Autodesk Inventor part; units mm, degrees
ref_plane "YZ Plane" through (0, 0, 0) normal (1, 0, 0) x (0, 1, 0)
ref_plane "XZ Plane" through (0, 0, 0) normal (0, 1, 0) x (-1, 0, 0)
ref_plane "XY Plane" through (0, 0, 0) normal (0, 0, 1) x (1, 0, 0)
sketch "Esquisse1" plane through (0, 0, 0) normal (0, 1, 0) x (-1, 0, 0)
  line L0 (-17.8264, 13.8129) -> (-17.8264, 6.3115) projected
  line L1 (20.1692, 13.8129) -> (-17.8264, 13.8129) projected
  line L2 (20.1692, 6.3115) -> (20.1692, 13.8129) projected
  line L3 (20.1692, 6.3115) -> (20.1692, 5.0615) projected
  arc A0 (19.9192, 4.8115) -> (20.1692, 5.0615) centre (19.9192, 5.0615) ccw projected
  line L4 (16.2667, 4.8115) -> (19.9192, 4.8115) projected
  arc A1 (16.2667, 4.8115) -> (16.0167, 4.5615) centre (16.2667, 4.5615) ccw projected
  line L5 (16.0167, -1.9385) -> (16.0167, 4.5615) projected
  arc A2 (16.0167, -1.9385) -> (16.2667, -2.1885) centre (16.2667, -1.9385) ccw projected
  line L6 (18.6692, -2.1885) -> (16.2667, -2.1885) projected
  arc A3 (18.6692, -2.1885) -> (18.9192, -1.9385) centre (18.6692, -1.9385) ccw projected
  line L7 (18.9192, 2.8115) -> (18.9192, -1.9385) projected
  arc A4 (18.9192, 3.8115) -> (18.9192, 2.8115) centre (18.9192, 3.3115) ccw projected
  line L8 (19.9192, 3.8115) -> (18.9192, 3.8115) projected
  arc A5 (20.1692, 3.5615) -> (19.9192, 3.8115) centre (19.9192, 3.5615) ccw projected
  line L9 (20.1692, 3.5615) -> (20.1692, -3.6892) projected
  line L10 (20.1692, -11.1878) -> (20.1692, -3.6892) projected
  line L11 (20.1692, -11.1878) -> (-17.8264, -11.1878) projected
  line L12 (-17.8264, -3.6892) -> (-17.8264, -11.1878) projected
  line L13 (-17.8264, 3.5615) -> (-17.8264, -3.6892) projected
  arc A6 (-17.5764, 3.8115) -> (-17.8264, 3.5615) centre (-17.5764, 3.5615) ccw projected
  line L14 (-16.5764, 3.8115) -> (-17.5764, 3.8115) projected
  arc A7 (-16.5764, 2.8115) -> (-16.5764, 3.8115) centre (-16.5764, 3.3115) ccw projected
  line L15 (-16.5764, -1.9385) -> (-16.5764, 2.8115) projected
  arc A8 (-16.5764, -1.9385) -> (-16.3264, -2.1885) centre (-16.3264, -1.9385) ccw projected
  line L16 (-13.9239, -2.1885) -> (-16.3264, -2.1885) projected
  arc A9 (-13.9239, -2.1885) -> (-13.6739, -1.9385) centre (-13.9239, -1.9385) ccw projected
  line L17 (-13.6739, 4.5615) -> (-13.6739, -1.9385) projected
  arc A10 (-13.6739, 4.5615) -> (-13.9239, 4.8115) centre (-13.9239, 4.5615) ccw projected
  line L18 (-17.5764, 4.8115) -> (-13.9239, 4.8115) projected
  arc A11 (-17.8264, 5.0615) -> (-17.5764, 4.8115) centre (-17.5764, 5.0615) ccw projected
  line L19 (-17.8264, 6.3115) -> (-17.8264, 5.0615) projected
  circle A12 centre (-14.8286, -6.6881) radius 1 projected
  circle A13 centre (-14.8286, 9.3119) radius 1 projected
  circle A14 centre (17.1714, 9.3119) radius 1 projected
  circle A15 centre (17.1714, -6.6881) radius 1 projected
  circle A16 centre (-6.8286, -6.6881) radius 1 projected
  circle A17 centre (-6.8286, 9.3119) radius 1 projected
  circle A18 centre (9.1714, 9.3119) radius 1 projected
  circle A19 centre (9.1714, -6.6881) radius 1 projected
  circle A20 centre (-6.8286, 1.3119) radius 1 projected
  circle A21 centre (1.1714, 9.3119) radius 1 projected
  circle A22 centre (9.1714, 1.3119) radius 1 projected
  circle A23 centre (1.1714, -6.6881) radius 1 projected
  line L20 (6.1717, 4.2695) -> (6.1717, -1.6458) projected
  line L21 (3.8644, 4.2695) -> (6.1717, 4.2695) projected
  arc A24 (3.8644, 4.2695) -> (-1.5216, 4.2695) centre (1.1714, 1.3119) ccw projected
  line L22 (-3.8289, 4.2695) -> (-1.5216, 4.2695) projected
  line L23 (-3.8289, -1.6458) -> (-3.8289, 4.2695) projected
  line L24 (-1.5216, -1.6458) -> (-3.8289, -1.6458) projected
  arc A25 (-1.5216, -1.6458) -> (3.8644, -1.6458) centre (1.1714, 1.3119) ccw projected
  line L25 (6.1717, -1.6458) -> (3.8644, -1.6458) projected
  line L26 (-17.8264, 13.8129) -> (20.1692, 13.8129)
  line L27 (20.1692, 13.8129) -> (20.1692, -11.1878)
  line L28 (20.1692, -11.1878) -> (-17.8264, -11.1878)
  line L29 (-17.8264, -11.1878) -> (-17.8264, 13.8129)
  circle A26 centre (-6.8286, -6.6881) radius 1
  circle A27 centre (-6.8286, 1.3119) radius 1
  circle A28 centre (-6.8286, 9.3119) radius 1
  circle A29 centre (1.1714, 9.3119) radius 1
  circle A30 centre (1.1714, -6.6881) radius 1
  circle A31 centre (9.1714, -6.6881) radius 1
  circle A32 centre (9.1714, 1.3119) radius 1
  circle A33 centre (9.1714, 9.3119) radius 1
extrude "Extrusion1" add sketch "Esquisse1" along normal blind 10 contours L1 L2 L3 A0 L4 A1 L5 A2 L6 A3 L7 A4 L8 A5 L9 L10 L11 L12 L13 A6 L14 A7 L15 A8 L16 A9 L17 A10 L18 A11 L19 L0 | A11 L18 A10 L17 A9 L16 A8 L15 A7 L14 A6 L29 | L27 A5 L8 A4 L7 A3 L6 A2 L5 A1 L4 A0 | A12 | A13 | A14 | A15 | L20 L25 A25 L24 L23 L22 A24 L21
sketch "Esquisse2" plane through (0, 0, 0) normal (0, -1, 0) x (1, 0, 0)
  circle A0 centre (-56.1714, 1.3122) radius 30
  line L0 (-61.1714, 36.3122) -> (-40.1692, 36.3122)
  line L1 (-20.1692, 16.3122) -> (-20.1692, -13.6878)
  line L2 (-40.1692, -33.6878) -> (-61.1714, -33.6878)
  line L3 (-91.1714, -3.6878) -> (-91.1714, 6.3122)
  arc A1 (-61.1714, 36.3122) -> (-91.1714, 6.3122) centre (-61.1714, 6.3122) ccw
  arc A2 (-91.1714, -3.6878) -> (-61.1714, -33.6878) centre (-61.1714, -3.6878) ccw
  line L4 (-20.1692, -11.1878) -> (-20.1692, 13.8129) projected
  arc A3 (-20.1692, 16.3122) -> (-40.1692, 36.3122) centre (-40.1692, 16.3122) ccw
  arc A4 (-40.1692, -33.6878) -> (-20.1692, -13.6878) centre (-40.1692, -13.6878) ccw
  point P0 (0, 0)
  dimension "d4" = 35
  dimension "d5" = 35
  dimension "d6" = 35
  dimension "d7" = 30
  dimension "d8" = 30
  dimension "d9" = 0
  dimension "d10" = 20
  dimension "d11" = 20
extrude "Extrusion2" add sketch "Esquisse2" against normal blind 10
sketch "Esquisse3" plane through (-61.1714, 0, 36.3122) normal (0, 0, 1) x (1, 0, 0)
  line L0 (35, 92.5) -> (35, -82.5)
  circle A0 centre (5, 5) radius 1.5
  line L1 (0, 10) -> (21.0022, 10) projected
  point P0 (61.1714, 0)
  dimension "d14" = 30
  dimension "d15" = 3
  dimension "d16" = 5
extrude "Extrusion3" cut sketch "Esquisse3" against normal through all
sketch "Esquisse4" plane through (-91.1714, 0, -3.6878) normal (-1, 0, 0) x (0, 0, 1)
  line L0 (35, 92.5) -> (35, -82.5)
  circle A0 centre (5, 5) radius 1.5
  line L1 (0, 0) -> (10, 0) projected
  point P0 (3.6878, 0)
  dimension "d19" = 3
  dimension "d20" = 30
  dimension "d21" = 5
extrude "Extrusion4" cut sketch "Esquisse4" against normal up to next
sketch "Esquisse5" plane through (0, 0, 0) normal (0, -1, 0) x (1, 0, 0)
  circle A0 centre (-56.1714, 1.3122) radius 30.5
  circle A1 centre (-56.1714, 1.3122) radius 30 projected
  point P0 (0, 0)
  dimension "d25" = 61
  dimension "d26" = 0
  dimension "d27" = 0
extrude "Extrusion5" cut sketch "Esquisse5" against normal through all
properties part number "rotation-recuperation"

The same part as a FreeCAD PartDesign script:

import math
import FreeCAD as App
import Part
import Sketcher
Q = App.Units.Quantity

doc = App.newDocument("Part")
body = doc.addObject("PartDesign::Body", "Body")

sketch1 = body.newObject("Sketcher::SketchObject", "Sketch")
sketch1.AttachmentSupport = (doc.getObject("XZ_Plane"), [""])
sketch1.MapMode = "FlatFace"
sketch1.addGeometry([
    Part.LineSegment(App.Vector(-20.1692, 13.8129, 0), App.Vector(17.8264, 13.8129, 0)),
    Part.LineSegment(App.Vector(17.8264, 13.8129, 0), App.Vector(17.8264, -11.1878, 0)),
    Part.LineSegment(App.Vector(17.8264, -11.1878, 0), App.Vector(-20.1692, -11.1878, 0)),
    Part.LineSegment(App.Vector(-20.1692, -11.1878, 0), App.Vector(-20.1692, 13.8129, 0)),
    Part.Circle(App.Vector(6.8286, -6.6881, 0), App.Vector(0, 0, 1), 1),
    Part.Circle(App.Vector(6.8286, 1.3119, 0), App.Vector(0, 0, 1), 1),
    Part.Circle(App.Vector(-1.1714, -6.6881, 0), App.Vector(0, 0, 1), 1),
    Part.Circle(App.Vector(-9.1714, -6.6881, 0), App.Vector(0, 0, 1), 1),
    Part.Circle(App.Vector(-9.1714, 1.3119, 0), App.Vector(0, 0, 1), 1),
    Part.Circle(App.Vector(6.8286, 9.3119, 0), App.Vector(0, 0, 1), 1),
    Part.Circle(App.Vector(-1.1714, 9.3119, 0), App.Vector(0, 0, 1), 1),
    Part.Circle(App.Vector(-9.1714, 9.3119, 0), App.Vector(0, 0, 1), 1),
], False)
sketch1.addConstraint([
    Sketcher.Constraint("Coincident", 0, 2, 1, 1),
    Sketcher.Constraint("Coincident", 1, 2, 2, 1),
    Sketcher.Constraint("Coincident", 2, 2, 3, 1),
    Sketcher.Constraint("Coincident", 3, 2, 0, 1),
    Sketcher.Constraint("Horizontal", 0),
    Sketcher.Constraint("Vertical", 1),
    Sketcher.Constraint("Horizontal", 2),
    Sketcher.Constraint("Vertical", 3),
    Sketcher.Constraint("Equal", 4, 5),
    Sketcher.Constraint("Equal", 5, 6),
    Sketcher.Constraint("Equal", 6, 7),
    Sketcher.Constraint("Equal", 7, 8),
    Sketcher.Constraint("Equal", 8, 9),
    Sketcher.Constraint("Equal", 9, 10),
    Sketcher.Constraint("Equal", 10, 11),
    Sketcher.Constraint("Horizontal", 4, 3, 6, 3),
    Sketcher.Constraint("Horizontal", 6, 3, 7, 3),
    Sketcher.Constraint("Horizontal", 5, 3, 8, 3),
    Sketcher.Constraint("Horizontal", 9, 3, 10, 3),
    Sketcher.Constraint("Horizontal", 10, 3, 11, 3),
    Sketcher.Constraint("Vertical", 4, 3, 5, 3),
    Sketcher.Constraint("Vertical", 7, 3, 8, 3),
    Sketcher.Constraint("Vertical", 5, 3, 9, 3),
    Sketcher.Constraint("Vertical", 6, 3, 10, 3),
    Sketcher.Constraint("Vertical", 8, 3, 11, 3),
    Sketcher.Constraint("Diameter", 4, Q("2 mm")),
    Sketcher.Constraint("DistanceY", 4, 3, 5, 3, Q("8 mm")),
    Sketcher.Constraint("DistanceX", 6, 3, 4, 3, Q("8 mm")),
    Sketcher.Constraint("DistanceX", 7, 3, 6, 3, Q("8 mm")),
    Sketcher.Constraint("DistanceY", 5, 3, 9, 3, Q("8 mm")),
    Sketcher.Constraint("DistanceX", 0, 1, 0, 2, Q("37.9956 mm")),
    Sketcher.Constraint("DistanceY", 1, 2, 1, 1, Q("25.0007 mm")),
    Sketcher.Constraint("DistanceY", 4, 3, -1, 1, Q("6.688 mm")),
    Sketcher.Constraint("DistanceY", -1, 1, 0, 2, Q("13.813 mm")),
    Sketcher.Constraint("DistanceX", -1, 1, 4, 3, Q("6.8286 mm")),
    Sketcher.Constraint("DistanceX", -1, 1, 0, 2, Q("17.8264 mm")),
])
pad1 = body.newObject("PartDesign::Pad", "Pad")
pad1.Profile = sketch1
pad1.Length = 10
pad1.Reversed = True

sketch2 = body.newObject("Sketcher::SketchObject", "Sketch001")
sketch2.AttachmentSupport = (doc.getObject("XZ_Plane"), [""])
sketch2.MapMode = "FlatFace"
sketch2.addGeometry([
    Part.LineSegment(App.Vector(-40.1692, 36.3122, 0), App.Vector(-61.1714, 36.3122, 0)),
    Part.ArcOfCircle(Part.Circle(App.Vector(-61.1714, 6.3122, 0), App.Vector(0, 0, 1), 30), math.radians(90), math.radians(180)),
    Part.LineSegment(App.Vector(-91.1714, 6.3122, 0), App.Vector(-91.1714, -3.6878, 0)),
    Part.ArcOfCircle(Part.Circle(App.Vector(-61.1714, -3.6878, 0), App.Vector(0, 0, 1), 30), math.radians(180), math.radians(270)),
    Part.LineSegment(App.Vector(-61.1714, -33.6878, 0), App.Vector(-40.1692, -33.6878, 0)),
    Part.ArcOfCircle(Part.Circle(App.Vector(-40.1692, -13.6878, 0), App.Vector(0, 0, 1), 20), math.radians(-90), math.radians(0)),
    Part.LineSegment(App.Vector(-20.1692, -13.6878, 0), App.Vector(-20.1692, 16.3122, 0)),
    Part.ArcOfCircle(Part.Circle(App.Vector(-40.1692, 16.3122, 0), App.Vector(0, 0, 1), 20), math.radians(0), math.radians(90)),
    Part.Circle(App.Vector(-56.1714, 1.3122, 0), App.Vector(0, 0, 1), 30),
], False)
sketch2.addConstraint([
    Sketcher.Constraint("Tangent", 0, 2, 1, 1),
    Sketcher.Constraint("Tangent", 1, 2, 2, 1),
    Sketcher.Constraint("Tangent", 2, 2, 3, 1),
    Sketcher.Constraint("Tangent", 3, 2, 4, 1),
    Sketcher.Constraint("Tangent", 4, 2, 5, 1),
    Sketcher.Constraint("Tangent", 5, 2, 6, 1),
    Sketcher.Constraint("Tangent", 6, 2, 7, 1),
    Sketcher.Constraint("Tangent", 7, 2, 0, 1),
    Sketcher.Constraint("Horizontal", 0),
    Sketcher.Constraint("Vertical", 2),
    Sketcher.Constraint("Horizontal", 4),
    Sketcher.Constraint("Vertical", 6),
    Sketcher.Constraint("Equal", 1, 3),
    Sketcher.Constraint("Equal", 5, 7),
    Sketcher.Constraint("Equal", 3, 8),
    Sketcher.Constraint("Diameter", 8, Q("60 mm")),
    Sketcher.Constraint("Radius", 5, Q("20 mm")),
    Sketcher.Constraint("DistanceY", 6, 1, 6, 2, Q("30 mm")),
    Sketcher.Constraint("DistanceY", 8, 3, 0, 2, Q("35 mm")),
    Sketcher.Constraint("DistanceX", 1, 2, 8, 3, Q("35 mm")),
    Sketcher.Constraint("DistanceX", 0, 2, 0, 1, Q("21.0022 mm")),
    Sketcher.Constraint("DistanceX", 1, 3, -1, 1, Q("61.1714 mm")),
    Sketcher.Constraint("DistanceY", -1, 1, 1, 3, Q("6.3122 mm")),
])
pad2 = body.newObject("PartDesign::Pad", "Pad001")
pad2.Profile = sketch2
pad2.Length = 10
pad2.Reversed = True

sketch3 = body.newObject("Sketcher::SketchObject", "Sketch002")
sketch3.AttachmentSupport = (doc.getObject("XY_Plane"), [""])
sketch3.MapMode = "FlatFace"
sketch3.AttachmentOffset = App.Placement(App.Vector(0, 0, 36.3122), App.Rotation())
sketch3.addGeometry(Part.Circle(App.Vector(-56.1714, 5, 0), App.Vector(0, 0, 1), 1.5), False)
sketch3.addConstraint([
    Sketcher.Constraint("Diameter", 0, Q("3 mm")),
    Sketcher.Constraint("DistanceY", -1, 1, 0, 3, Q("5 mm")),
    Sketcher.Constraint("DistanceX", 0, 3, -1, 1, Q("56.1714 mm")),
])
pocket1 = body.newObject("PartDesign::Pocket", "Pocket")
pocket1.Profile = sketch3
pocket1.Type = "ThroughAll"

sketch4 = body.newObject("Sketcher::SketchObject", "Sketch003")
sketch4.AttachmentSupport = (doc.getObject("YZ_Plane"), [""])
sketch4.MapMode = "FlatFace"
sketch4.AttachmentOffset = App.Placement(App.Vector(0, 0, -91.1714), App.Rotation())
sketch4.addGeometry(Part.Circle(App.Vector(5, 1.3122, 0), App.Vector(0, 0, 1), 1.5), False)
sketch4.addConstraint([
    Sketcher.Constraint("Diameter", 0, Q("3 mm")),
    Sketcher.Constraint("DistanceX", -1, 1, 0, 3, Q("5 mm")),
    Sketcher.Constraint("DistanceY", -1, 1, 0, 3, Q("1.3122 mm")),
])
pocket2 = body.newObject("PartDesign::Pocket", "Pocket001")
pocket2.Profile = sketch4
pocket2.Type = "UpToFirst"
pocket2.Reversed = True

sketch5 = body.newObject("Sketcher::SketchObject", "Sketch004")
sketch5.AttachmentSupport = (doc.getObject("XZ_Plane"), [""])
sketch5.MapMode = "FlatFace"
sketch5.addGeometry([
    Part.Circle(App.Vector(-56.1714, 1.3122, 0), App.Vector(0, 0, 1), 30.5),
    Part.Circle(App.Vector(-56.1714, 1.3122, 0), App.Vector(0, 0, 1), 30),
], False)
sketch5.addConstraint([
    Sketcher.Constraint("Coincident", 1, 3, 0, 3),
    Sketcher.Constraint("Diameter", 0, Q("61 mm")),
    Sketcher.Constraint("Diameter", 1, Q("60 mm")),
    Sketcher.Constraint("DistanceX", 0, 3, -1, 1, Q("56.1714 mm")),
    Sketcher.Constraint("DistanceY", -1, 1, 0, 3, Q("1.3122 mm")),
])
pocket3 = body.newObject("PartDesign::Pocket", "Pocket002")
pocket3.Profile = sketch5
pocket3.Type = "ThroughAll"

doc.recompute()
